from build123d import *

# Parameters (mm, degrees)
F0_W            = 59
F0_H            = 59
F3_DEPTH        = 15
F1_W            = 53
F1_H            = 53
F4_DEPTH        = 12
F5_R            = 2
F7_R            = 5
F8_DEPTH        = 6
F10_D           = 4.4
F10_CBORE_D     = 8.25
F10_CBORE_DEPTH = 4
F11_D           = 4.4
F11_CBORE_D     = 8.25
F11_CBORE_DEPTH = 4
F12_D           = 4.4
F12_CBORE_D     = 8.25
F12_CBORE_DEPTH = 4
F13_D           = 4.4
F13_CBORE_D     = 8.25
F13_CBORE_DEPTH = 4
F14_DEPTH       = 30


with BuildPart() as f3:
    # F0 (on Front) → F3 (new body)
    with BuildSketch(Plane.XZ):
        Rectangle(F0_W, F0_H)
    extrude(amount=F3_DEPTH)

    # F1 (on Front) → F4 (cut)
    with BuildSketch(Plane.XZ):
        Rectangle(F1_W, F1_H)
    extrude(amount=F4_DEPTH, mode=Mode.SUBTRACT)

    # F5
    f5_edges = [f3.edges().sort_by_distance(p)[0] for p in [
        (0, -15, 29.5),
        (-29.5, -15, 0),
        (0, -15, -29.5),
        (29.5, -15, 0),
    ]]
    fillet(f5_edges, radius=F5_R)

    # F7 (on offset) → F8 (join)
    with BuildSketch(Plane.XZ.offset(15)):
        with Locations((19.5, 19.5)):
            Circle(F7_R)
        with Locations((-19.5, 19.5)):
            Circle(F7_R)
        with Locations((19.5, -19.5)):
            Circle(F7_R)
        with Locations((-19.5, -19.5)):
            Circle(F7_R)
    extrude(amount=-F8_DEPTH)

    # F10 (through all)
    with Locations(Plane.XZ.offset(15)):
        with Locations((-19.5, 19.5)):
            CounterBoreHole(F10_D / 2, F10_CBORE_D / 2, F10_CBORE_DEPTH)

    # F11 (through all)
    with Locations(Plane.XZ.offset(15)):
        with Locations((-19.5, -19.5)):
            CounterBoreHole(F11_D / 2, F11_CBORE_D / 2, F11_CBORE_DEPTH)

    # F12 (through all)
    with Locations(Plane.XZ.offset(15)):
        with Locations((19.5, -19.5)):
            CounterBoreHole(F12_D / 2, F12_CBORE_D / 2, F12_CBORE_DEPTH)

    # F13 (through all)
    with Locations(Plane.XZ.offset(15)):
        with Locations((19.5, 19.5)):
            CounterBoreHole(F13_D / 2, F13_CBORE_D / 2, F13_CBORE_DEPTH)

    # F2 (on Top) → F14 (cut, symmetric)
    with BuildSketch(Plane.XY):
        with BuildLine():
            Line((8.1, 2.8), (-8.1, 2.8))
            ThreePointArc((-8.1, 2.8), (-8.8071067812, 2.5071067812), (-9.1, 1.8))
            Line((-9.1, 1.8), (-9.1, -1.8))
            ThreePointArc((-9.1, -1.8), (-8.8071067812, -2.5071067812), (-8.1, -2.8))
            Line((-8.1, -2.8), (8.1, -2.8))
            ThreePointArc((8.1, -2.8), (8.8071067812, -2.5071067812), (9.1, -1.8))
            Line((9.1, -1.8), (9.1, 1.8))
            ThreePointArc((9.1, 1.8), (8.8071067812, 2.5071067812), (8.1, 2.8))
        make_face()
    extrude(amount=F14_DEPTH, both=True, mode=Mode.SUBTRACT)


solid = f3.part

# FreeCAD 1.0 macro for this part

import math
import FreeCAD as App
import Part
import Sketcher


def edges_at(feature, points):
    """Names of the edges that pass closest to the given points."""
    edges = feature.Shape.Edges
    near = lambda p: min(range(len(edges)), key=lambda i: edges[i].distToShape(Part.Vertex(*p))[0])
    return sorted({f"Edge{near(p) + 1}" for p in points})

doc = App.newDocument("Part")
params = doc.addObject("Spreadsheet::Sheet", "Params")
for row, (alias, value) in enumerate([
    ("sketch1_width", "59 mm"),
    ("pad1_length", "15 mm"),
    ("sketch2_width", "53 mm"),
    ("pocket1_length", "12 mm"),
    ("fillet_radius", "2 mm"),
    ("sketch3_diameter", "10 mm"),
    ("pad2_length", "6 mm"),
    ("sketch4_diameter", "4.4 mm"),
    ("hole_diameter", "4.4 mm"),
    ("hole_cbore_diameter", "8.25 mm"),
    ("hole_cbore_depth", "4 mm"),
    ("sketch5_diameter", "4.4 mm"),
    ("hole2_diameter", "4.4 mm"),
    ("hole2_cbore_diameter", "8.25 mm"),
    ("hole2_cbore_depth", "4 mm"),
    ("sketch6_diameter", "4.4 mm"),
    ("hole3_diameter", "4.4 mm"),
    ("hole3_cbore_diameter", "8.25 mm"),
    ("hole3_cbore_depth", "4 mm"),
    ("sketch7_diameter", "4.4 mm"),
    ("hole4_diameter", "4.4 mm"),
    ("hole4_cbore_diameter", "8.25 mm"),
    ("hole4_cbore_depth", "4 mm"),
    ("sketch8_radius", "1 mm"),
    ("sketch8_width", "16.2 mm"),
    ("sketch8_height", "3.6 mm"),
    ("pocket2_length", "60 mm"),
], start=1):
    params.set(f"A{row}", alias)
    params.set(f"B{row}", "=" + value)
    params.setAlias(f"B{row}", alias)

body = doc.addObject("PartDesign::Body", "Body")

# Sketch on XZ plane
sketch1 = body.newObject("Sketcher::SketchObject", "Sketch")
sketch1.AttachmentSupport = (doc.getObject("XZ_Plane"), [""])
sketch1.MapMode = "FlatFace"
sketch1.addGeometry([
    Part.LineSegment(App.Vector(-30, 30, 0), App.Vector(-30, -30, 0)),
    Part.LineSegment(App.Vector(-30, -30, 0), App.Vector(30, -30, 0)),
    Part.LineSegment(App.Vector(30, -30, 0), App.Vector(30, 30, 0)),
    Part.LineSegment(App.Vector(30, 30, 0), App.Vector(-30, 30, 0)),
], False)
sketch1.addConstraint([
    Sketcher.Constraint("Coincident", 0, 2, 1, 1),
    Sketcher.Constraint("Coincident", 1, 2, 2, 1),
    Sketcher.Constraint("Coincident", 2, 2, 3, 1),
    Sketcher.Constraint("Coincident", 3, 2, 0, 1),
    Sketcher.Constraint("Vertical", 0),
    Sketcher.Constraint("Horizontal", 1),
    Sketcher.Constraint("Vertical", 2),
    Sketcher.Constraint("Horizontal", 3),
    Sketcher.Constraint("Symmetric", 0, 2, 2, 2, -1, 1),
    Sketcher.Constraint("Equal", 3, 0),
    Sketcher.Constraint("DistanceX", 1, 1, 1, 2, 59.0),
])
sketch1.setExpression("Constraints[10]", "Params.sketch1_width")
pad1 = body.newObject("PartDesign::Pad", "Pad")
pad1.Profile = sketch1
pad1.setExpression("Length", "Params.pad1_length")

# Sketch on XZ plane
sketch2 = body.newObject("Sketcher::SketchObject", "Sketch001")
sketch2.AttachmentSupport = (doc.getObject("XZ_Plane"), [""])
sketch2.MapMode = "FlatFace"
sketch2.addGeometry([
    Part.LineSegment(App.Vector(-26, 26, 0), App.Vector(-26, -26, 0)),
    Part.LineSegment(App.Vector(-26, -26, 0), App.Vector(26, -26, 0)),
    Part.LineSegment(App.Vector(26, -26, 0), App.Vector(26, 26, 0)),
    Part.LineSegment(App.Vector(26, 26, 0), App.Vector(-26, 26, 0)),
], False)
sketch2.addConstraint([
    Sketcher.Constraint("Coincident", 0, 2, 1, 1),
    Sketcher.Constraint("Coincident", 1, 2, 2, 1),
    Sketcher.Constraint("Coincident", 2, 2, 3, 1),
    Sketcher.Constraint("Coincident", 3, 2, 0, 1),
    Sketcher.Constraint("Vertical", 0),
    Sketcher.Constraint("Horizontal", 1),
    Sketcher.Constraint("Vertical", 2),
    Sketcher.Constraint("Horizontal", 3),
    Sketcher.Constraint("Symmetric", 0, 2, 2, 2, -1, 1),
    Sketcher.Constraint("Equal", 3, 0),
    Sketcher.Constraint("DistanceX", 1, 1, 1, 2, 53.0),
])
sketch2.setExpression("Constraints[10]", "Params.sketch2_width")
pocket1 = body.newObject("PartDesign::Pocket", "Pocket")
pocket1.Profile = sketch2
pocket1.setExpression("Length", "Params.pocket1_length")
pocket1.Reversed = True
doc.recompute()

fillet = body.newObject("PartDesign::Fillet", "Fillet")
fillet.Base = (pocket1, edges_at(pocket1, [
    (0, -15, 29.5),
    (-29.5, -15, 0),
    (0, -15, -29.5),
    (29.5, -15, 0),
]))
fillet.setExpression("Radius", "Params.fillet_radius")

# Sketch on XZ plane
sketch3 = body.newObject("Sketcher::SketchObject", "Sketch002")
sketch3.AttachmentSupport = (doc.getObject("XZ_Plane"), [""])
sketch3.MapMode = "FlatFace"
sketch3.AttachmentOffset = App.Placement(App.Vector(0, 0, 15), App.Rotation())
sketch3.addGeometry([
    Part.Circle(App.Vector(20, 20, 0), App.Vector(0, 0, 1), 5),
    Part.Circle(App.Vector(-20, 20, 0), App.Vector(0, 0, 1), 5),
    Part.Circle(App.Vector(20, -20, 0), App.Vector(0, 0, 1), 5),
    Part.Circle(App.Vector(-20, -20, 0), App.Vector(0, 0, 1), 5),
], False)
sketch3.addConstraint([
    Sketcher.Constraint("Equal", 0, 1),
    Sketcher.Constraint("Equal", 1, 2),
    Sketcher.Constraint("Equal", 2, 3),
    Sketcher.Constraint("Symmetric", 1, 3, 2, 3, -1, 1),
    Sketcher.Constraint("Symmetric", 0, 3, 3, 3, -1, 1),
    Sketcher.Constraint("Symmetric", 0, 3, 1, 3, -2),
    Sketcher.Constraint("Diameter", 0, 10.0),
    Sketcher.Constraint("DistanceX", 1, 3, 0, 3, 39.0),
    Sketcher.Constraint("DistanceY", 2, 3, 0, 3, 39.0),
])
sketch3.setExpression("Constraints[6]", "Params.sketch3_diameter")
pad2 = body.newObject("PartDesign::Pad", "Pad001")
pad2.Profile = sketch3
pad2.setExpression("Length", "Params.pad2_length")
pad2.Reversed = True

# Sketch on XZ plane
sketch4 = body.newObject("Sketcher::SketchObject", "Sketch003")
sketch4.AttachmentSupport = (doc.getObject("XZ_Plane"), [""])
sketch4.MapMode = "FlatFace"
sketch4.AttachmentOffset = App.Placement(App.Vector(0, 0, 15), App.Rotation())
sketch4.addGeometry(Part.Circle(App.Vector(-19.5, 19.5, 0), App.Vector(0, 0, 1), 2.2), False)
sketch4.addConstraint([
    Sketcher.Constraint("Diameter", 0, 4.4),
    Sketcher.Constraint("DistanceX", 0, 3, -1, 1, 19.5),
    Sketcher.Constraint("DistanceY", -1, 1, 0, 3, 19.5),
])
sketch4.setExpression("Constraints[0]", "Params.sketch4_diameter")
doc.recompute()
hole = body.newObject("PartDesign::Hole", "Hole")
hole.Profile = sketch4
hole.ThreadType = "None"
hole.setExpression("Diameter", "Params.hole_diameter")
hole.DepthType = "ThroughAll"
hole.HoleCutType = "Counterbore"
hole.setExpression("HoleCutDiameter", "Params.hole_cbore_diameter")
hole.setExpression("HoleCutDepth", "Params.hole_cbore_depth")

# Sketch on XZ plane
sketch5 = body.newObject("Sketcher::SketchObject", "Sketch004")
sketch5.AttachmentSupport = (doc.getObject("XZ_Plane"), [""])
sketch5.MapMode = "FlatFace"
sketch5.AttachmentOffset = App.Placement(App.Vector(0, 0, 15), App.Rotation())
sketch5.addGeometry(Part.Circle(App.Vector(-19.5, -19.5, 0), App.Vector(0, 0, 1), 2.2), False)
sketch5.addConstraint([
    Sketcher.Constraint("Diameter", 0, 4.4),
    Sketcher.Constraint("DistanceX", 0, 3, -1, 1, 19.5),
    Sketcher.Constraint("DistanceY", 0, 3, -1, 1, 19.5),
])
sketch5.setExpression("Constraints[0]", "Params.sketch5_diameter")
doc.recompute()
hole2 = body.newObject("PartDesign::Hole", "Hole001")
hole2.Profile = sketch5
hole2.ThreadType = "None"
hole2.setExpression("Diameter", "Params.hole2_diameter")
hole2.DepthType = "ThroughAll"
hole2.HoleCutType = "Counterbore"
hole2.setExpression("HoleCutDiameter", "Params.hole2_cbore_diameter")
hole2.setExpression("HoleCutDepth", "Params.hole2_cbore_depth")

# Sketch on XZ plane
sketch6 = body.newObject("Sketcher::SketchObject", "Sketch005")
sketch6.AttachmentSupport = (doc.getObject("XZ_Plane"), [""])
sketch6.MapMode = "FlatFace"
sketch6.AttachmentOffset = App.Placement(App.Vector(0, 0, 15), App.Rotation())
sketch6.addGeometry(Part.Circle(App.Vector(19.5, -19.5, 0), App.Vector(0, 0, 1), 2.2), False)
sketch6.addConstraint([
    Sketcher.Constraint("Diameter", 0, 4.4),
    Sketcher.Constraint("DistanceX", -1, 1, 0, 3, 19.5),
    Sketcher.Constraint("DistanceY", 0, 3, -1, 1, 19.5),
])
sketch6.setExpression("Constraints[0]", "Params.sketch6_diameter")
doc.recompute()
hole3 = body.newObject("PartDesign::Hole", "Hole002")
hole3.Profile = sketch6
hole3.ThreadType = "None"
hole3.setExpression("Diameter", "Params.hole3_diameter")
hole3.DepthType = "ThroughAll"
hole3.HoleCutType = "Counterbore"
hole3.setExpression("HoleCutDiameter", "Params.hole3_cbore_diameter")
hole3.setExpression("HoleCutDepth", "Params.hole3_cbore_depth")

# Sketch on XZ plane
sketch7 = body.newObject("Sketcher::SketchObject", "Sketch006")
sketch7.AttachmentSupport = (doc.getObject("XZ_Plane"), [""])
sketch7.MapMode = "FlatFace"
sketch7.AttachmentOffset = App.Placement(App.Vector(0, 0, 15), App.Rotation())
sketch7.addGeometry(Part.Circle(App.Vector(19.5, 19.5, 0), App.Vector(0, 0, 1), 2.2), False)
sketch7.addConstraint([
    Sketcher.Constraint("Diameter", 0, 4.4),
    Sketcher.Constraint("DistanceX", -1, 1, 0, 3, 19.5),
    Sketcher.Constraint("DistanceY", -1, 1, 0, 3, 19.5),
])
sketch7.setExpression("Constraints[0]", "Params.sketch7_diameter")
doc.recompute()
hole4 = body.newObject("PartDesign::Hole", "Hole003")
hole4.Profile = sketch7
hole4.ThreadType = "None"
hole4.setExpression("Diameter", "Params.hole4_diameter")
hole4.DepthType = "ThroughAll"
hole4.HoleCutType = "Counterbore"
hole4.setExpression("HoleCutDiameter", "Params.hole4_cbore_diameter")
hole4.setExpression("HoleCutDepth", "Params.hole4_cbore_depth")

# Sketch on XY plane
sketch8 = body.newObject("Sketcher::SketchObject", "Sketch007")
sketch8.AttachmentSupport = (doc.getObject("XY_Plane"), [""])
sketch8.MapMode = "FlatFace"
sketch8.addGeometry([
    Part.LineSegment(App.Vector(8.1, 2.8, 0), App.Vector(-8.1, 2.8, 0)),  # 0
    Part.ArcOfCircle(Part.Circle(App.Vector(-8.1, 1.8, 0), App.Vector(0, 0, 1), 1), math.radians(90), math.radians(180)),  # 1
    Part.LineSegment(App.Vector(-9.1, 1.8, 0), App.Vector(-9.1, -1.8, 0)),  # 2
    Part.ArcOfCircle(Part.Circle(App.Vector(-8.1, -1.8, 0), App.Vector(0, 0, 1), 1), math.radians(180), math.radians(270)),  # 3
    Part.LineSegment(App.Vector(-8.1, -2.8, 0), App.Vector(8.1, -2.8, 0)),  # 4
    Part.ArcOfCircle(Part.Circle(App.Vector(8.1, -1.8, 0), App.Vector(0, 0, 1), 1), math.radians(-90), math.radians(0)),  # 5
    Part.LineSegment(App.Vector(9.1, -1.8, 0), App.Vector(9.1, 1.8, 0)),  # 6
    Part.ArcOfCircle(Part.Circle(App.Vector(8.1, 1.8, 0), App.Vector(0, 0, 1), 1), math.radians(0), math.radians(90)),  # 7
], False)
sketch8.addConstraint([
    Sketcher.Constraint("Tangent", 0, 2, 1, 1),
    Sketcher.Constraint("Tangent", 1, 2, 2, 1),
    Sketcher.Constraint("Tangent", 2, 2, 3, 1),
    Sketcher.Constraint("Tangent", 3, 2, 4, 1),
    Sketcher.Constraint("Tangent", 4, 2, 5, 1),
    Sketcher.Constraint("Tangent", 5, 2, 6, 1),
    Sketcher.Constraint("Tangent", 6, 2, 7, 1),
    Sketcher.Constraint("Tangent", 7, 2, 0, 1),
    Sketcher.Constraint("Horizontal", 0),
    Sketcher.Constraint("Vertical", 2),
    Sketcher.Constraint("Horizontal", 4),
    Sketcher.Constraint("Vertical", 6),
    Sketcher.Constraint("Equal", 1, 3),
    Sketcher.Constraint("Equal", 3, 5),
    Sketcher.Constraint("Equal", 5, 7),
    Sketcher.Constraint("Symmetric", 1, 3, 5, 3, -1, 1),
    Sketcher.Constraint("Radius", 1, 1.0),
    Sketcher.Constraint("DistanceX", 0, 2, 0, 1, 16.2),
    Sketcher.Constraint("DistanceY", 2, 2, 2, 1, 3.6),
])
sketch8.setExpression("Constraints[16]", "Params.sketch8_radius")
sketch8.setExpression("Constraints[17]", "Params.sketch8_width")
sketch8.setExpression("Constraints[18]", "Params.sketch8_height")
pocket2 = body.newObject("PartDesign::Pocket", "Pocket001")
pocket2.Profile = sketch8
pocket2.setExpression("Length", "Params.pocket2_length")
pocket2.Midplane = True

doc.recompute()
